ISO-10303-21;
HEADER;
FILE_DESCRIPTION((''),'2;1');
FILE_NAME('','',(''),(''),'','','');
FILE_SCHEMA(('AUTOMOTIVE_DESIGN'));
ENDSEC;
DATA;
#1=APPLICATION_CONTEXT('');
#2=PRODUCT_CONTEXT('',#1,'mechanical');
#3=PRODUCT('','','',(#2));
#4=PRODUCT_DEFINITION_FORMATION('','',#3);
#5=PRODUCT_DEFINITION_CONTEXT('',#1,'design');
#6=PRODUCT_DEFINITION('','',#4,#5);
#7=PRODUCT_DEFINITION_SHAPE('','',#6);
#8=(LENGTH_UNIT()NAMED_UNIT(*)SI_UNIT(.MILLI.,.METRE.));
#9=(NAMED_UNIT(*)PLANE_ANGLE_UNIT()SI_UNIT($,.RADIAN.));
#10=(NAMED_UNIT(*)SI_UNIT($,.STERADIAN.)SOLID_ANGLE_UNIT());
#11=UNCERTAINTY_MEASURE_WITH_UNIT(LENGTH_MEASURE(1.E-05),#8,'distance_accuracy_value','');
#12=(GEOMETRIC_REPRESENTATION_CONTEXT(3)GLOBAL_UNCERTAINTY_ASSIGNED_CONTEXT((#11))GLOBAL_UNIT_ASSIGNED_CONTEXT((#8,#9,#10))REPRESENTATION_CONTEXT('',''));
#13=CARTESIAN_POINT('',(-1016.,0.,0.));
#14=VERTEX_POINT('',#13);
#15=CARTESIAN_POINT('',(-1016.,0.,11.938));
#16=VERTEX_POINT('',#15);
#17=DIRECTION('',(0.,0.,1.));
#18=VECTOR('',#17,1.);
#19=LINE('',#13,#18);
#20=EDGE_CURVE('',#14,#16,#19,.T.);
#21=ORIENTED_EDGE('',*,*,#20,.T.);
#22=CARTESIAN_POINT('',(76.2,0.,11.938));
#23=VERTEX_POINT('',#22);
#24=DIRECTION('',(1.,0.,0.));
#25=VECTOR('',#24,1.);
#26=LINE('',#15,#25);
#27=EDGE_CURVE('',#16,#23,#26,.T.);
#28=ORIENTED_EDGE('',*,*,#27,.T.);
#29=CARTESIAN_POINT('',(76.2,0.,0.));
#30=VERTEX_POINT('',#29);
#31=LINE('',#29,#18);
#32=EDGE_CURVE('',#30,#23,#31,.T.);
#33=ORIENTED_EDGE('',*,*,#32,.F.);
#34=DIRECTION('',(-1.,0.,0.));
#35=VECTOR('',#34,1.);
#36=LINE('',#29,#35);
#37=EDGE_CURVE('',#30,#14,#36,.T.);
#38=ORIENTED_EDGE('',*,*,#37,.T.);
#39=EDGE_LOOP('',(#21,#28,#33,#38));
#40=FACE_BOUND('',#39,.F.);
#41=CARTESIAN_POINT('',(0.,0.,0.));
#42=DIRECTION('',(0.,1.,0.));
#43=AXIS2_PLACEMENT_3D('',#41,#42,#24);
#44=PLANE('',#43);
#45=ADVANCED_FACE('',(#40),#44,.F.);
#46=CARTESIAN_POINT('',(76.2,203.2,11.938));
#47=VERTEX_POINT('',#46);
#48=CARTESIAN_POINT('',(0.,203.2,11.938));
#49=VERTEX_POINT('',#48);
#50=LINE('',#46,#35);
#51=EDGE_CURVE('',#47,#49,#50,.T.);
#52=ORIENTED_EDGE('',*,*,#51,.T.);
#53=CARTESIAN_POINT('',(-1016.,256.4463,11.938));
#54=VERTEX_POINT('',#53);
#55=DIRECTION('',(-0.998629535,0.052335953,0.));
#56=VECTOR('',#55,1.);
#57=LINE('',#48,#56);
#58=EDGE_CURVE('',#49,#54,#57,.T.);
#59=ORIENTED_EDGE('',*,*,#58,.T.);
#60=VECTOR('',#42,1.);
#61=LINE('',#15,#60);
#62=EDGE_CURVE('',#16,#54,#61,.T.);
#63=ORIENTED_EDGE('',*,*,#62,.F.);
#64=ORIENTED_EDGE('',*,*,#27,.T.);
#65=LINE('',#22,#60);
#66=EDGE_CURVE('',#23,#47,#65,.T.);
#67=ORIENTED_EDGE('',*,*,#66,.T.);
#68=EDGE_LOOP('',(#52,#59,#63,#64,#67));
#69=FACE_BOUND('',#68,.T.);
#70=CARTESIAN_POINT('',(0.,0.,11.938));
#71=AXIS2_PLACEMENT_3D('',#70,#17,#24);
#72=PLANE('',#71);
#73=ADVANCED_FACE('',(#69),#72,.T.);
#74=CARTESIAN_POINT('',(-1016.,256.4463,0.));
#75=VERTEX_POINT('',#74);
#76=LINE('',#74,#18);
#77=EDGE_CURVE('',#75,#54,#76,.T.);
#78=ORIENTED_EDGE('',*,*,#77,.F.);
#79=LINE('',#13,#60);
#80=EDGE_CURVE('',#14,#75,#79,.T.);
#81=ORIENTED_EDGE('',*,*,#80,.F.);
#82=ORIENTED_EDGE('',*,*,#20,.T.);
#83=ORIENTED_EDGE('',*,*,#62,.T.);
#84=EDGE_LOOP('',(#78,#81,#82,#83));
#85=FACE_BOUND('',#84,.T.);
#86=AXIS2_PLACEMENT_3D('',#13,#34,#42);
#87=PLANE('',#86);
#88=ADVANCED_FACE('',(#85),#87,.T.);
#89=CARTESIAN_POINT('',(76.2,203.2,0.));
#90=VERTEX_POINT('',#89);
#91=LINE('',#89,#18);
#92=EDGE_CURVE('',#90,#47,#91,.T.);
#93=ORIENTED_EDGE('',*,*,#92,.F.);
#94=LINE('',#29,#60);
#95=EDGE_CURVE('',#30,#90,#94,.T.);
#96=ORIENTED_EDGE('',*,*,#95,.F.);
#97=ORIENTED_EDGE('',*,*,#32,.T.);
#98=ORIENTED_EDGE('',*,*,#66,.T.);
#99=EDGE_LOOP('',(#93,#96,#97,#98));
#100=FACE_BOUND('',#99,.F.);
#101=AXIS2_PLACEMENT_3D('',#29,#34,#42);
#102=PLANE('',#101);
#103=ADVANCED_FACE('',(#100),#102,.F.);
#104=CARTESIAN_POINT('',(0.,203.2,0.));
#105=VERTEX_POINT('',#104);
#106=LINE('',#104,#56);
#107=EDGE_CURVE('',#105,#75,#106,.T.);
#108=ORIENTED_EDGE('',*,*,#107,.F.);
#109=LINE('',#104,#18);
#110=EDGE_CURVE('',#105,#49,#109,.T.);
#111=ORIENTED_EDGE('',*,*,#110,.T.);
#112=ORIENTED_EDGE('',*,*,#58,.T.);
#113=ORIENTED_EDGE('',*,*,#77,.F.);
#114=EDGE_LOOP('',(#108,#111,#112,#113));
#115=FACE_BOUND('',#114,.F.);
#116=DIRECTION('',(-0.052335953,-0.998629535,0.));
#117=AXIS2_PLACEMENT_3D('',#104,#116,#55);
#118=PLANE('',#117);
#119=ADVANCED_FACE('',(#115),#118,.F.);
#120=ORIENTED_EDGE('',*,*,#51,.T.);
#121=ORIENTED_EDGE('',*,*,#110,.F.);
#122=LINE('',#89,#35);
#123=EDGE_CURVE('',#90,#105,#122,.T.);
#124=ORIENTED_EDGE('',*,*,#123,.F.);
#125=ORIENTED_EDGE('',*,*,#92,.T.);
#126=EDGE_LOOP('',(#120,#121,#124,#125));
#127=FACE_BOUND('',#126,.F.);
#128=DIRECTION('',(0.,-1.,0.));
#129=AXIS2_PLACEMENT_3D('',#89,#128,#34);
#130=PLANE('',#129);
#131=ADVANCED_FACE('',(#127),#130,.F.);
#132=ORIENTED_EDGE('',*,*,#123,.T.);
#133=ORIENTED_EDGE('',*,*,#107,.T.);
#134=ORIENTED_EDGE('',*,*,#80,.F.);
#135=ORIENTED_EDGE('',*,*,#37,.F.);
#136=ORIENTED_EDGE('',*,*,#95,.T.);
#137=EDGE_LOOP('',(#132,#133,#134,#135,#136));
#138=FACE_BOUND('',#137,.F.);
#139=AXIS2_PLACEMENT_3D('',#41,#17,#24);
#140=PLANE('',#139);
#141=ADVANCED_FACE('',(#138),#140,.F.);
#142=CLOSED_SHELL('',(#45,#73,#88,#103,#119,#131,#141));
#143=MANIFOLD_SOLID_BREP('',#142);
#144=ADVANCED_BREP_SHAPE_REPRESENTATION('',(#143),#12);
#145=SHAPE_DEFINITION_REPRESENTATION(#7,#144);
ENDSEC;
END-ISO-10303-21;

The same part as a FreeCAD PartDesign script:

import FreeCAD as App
import Part
import Sketcher

V = App.Vector
Q = App.Units.Quantity


def add_polygon(sketch, points):
    """Adds a closed chain of lines whose ends are joined by coincident constraints."""
    first, n = sketch.GeometryCount, len(points)
    for a, b in zip(points, points[1:] + points[:1]):
        sketch.addGeometry(Part.LineSegment(App.Vector(*a, 0), App.Vector(*b, 0)), False)
    for i in range(n):
        sketch.addConstraint(Sketcher.Constraint("Coincident", first + i, 2, first + (i + 1) % n, 1))

doc = App.newDocument("Part")
params = doc.addObject("Spreadsheet::Sheet", "Params")
for row, (alias, value) in enumerate([
    ("sketch1_width", "3 in"),
    ("sketch1_height", "8 in"),
    ("pad1_length", "0.47 in"),
], start=1):
    params.set(f"A{row}", alias)
    params.set(f"B{row}", "=" + value)
    params.setAlias(f"B{row}", alias)

body = doc.addObject("PartDesign::Body", "Body")

# Sketch on XY plane
sketch1 = doc.addObject("Sketcher::SketchObject", "Sketch")
body.addObject(sketch1)
sketch1.AttachmentSupport = (doc.XY_Plane, [""])
sketch1.MapMode = "FlatFace"
add_polygon(sketch1, [(76, 203), (0, 203), (-1016, 256), (-1016, 0), (76, 0)])  # lines 0-4
sketch1.addConstraint(Sketcher.Constraint("Horizontal", 0))
sketch1.addConstraint(Sketcher.Constraint("Vertical", 2))
sketch1.addConstraint(Sketcher.Constraint("Horizontal", 3))
sketch1.addConstraint(Sketcher.Constraint("Vertical", 4))
sketch1.addConstraint(Sketcher.Constraint("PointOnObject", 0, 2, -2))
sketch1.addConstraint(Sketcher.Constraint("PointOnObject", 2, 2, -1))
sketch1.addConstraint(Sketcher.Constraint("DistanceX", 0, 2, 0, 1, Q("3 in")))
sketch1.addConstraint(Sketcher.Constraint("DistanceY", 4, 1, 4, 2, Q("8 in")))
sketch1.addConstraint(Sketcher.Constraint("DistanceX", 1, 2, -1, 1, Q("40 in")))
sketch1.addConstraint(Sketcher.Constraint("Angle", 1, Q("177 deg")))
sketch1.setExpression("Constraints[11]", "Params.sketch1_width")
sketch1.setExpression("Constraints[12]", "Params.sketch1_height")
pad1 = doc.addObject("PartDesign::Pad", "Pad")
body.addObject(pad1)
pad1.Profile = sketch1
pad1.setExpression("Length", "Params.pad1_length")

doc.recompute()
